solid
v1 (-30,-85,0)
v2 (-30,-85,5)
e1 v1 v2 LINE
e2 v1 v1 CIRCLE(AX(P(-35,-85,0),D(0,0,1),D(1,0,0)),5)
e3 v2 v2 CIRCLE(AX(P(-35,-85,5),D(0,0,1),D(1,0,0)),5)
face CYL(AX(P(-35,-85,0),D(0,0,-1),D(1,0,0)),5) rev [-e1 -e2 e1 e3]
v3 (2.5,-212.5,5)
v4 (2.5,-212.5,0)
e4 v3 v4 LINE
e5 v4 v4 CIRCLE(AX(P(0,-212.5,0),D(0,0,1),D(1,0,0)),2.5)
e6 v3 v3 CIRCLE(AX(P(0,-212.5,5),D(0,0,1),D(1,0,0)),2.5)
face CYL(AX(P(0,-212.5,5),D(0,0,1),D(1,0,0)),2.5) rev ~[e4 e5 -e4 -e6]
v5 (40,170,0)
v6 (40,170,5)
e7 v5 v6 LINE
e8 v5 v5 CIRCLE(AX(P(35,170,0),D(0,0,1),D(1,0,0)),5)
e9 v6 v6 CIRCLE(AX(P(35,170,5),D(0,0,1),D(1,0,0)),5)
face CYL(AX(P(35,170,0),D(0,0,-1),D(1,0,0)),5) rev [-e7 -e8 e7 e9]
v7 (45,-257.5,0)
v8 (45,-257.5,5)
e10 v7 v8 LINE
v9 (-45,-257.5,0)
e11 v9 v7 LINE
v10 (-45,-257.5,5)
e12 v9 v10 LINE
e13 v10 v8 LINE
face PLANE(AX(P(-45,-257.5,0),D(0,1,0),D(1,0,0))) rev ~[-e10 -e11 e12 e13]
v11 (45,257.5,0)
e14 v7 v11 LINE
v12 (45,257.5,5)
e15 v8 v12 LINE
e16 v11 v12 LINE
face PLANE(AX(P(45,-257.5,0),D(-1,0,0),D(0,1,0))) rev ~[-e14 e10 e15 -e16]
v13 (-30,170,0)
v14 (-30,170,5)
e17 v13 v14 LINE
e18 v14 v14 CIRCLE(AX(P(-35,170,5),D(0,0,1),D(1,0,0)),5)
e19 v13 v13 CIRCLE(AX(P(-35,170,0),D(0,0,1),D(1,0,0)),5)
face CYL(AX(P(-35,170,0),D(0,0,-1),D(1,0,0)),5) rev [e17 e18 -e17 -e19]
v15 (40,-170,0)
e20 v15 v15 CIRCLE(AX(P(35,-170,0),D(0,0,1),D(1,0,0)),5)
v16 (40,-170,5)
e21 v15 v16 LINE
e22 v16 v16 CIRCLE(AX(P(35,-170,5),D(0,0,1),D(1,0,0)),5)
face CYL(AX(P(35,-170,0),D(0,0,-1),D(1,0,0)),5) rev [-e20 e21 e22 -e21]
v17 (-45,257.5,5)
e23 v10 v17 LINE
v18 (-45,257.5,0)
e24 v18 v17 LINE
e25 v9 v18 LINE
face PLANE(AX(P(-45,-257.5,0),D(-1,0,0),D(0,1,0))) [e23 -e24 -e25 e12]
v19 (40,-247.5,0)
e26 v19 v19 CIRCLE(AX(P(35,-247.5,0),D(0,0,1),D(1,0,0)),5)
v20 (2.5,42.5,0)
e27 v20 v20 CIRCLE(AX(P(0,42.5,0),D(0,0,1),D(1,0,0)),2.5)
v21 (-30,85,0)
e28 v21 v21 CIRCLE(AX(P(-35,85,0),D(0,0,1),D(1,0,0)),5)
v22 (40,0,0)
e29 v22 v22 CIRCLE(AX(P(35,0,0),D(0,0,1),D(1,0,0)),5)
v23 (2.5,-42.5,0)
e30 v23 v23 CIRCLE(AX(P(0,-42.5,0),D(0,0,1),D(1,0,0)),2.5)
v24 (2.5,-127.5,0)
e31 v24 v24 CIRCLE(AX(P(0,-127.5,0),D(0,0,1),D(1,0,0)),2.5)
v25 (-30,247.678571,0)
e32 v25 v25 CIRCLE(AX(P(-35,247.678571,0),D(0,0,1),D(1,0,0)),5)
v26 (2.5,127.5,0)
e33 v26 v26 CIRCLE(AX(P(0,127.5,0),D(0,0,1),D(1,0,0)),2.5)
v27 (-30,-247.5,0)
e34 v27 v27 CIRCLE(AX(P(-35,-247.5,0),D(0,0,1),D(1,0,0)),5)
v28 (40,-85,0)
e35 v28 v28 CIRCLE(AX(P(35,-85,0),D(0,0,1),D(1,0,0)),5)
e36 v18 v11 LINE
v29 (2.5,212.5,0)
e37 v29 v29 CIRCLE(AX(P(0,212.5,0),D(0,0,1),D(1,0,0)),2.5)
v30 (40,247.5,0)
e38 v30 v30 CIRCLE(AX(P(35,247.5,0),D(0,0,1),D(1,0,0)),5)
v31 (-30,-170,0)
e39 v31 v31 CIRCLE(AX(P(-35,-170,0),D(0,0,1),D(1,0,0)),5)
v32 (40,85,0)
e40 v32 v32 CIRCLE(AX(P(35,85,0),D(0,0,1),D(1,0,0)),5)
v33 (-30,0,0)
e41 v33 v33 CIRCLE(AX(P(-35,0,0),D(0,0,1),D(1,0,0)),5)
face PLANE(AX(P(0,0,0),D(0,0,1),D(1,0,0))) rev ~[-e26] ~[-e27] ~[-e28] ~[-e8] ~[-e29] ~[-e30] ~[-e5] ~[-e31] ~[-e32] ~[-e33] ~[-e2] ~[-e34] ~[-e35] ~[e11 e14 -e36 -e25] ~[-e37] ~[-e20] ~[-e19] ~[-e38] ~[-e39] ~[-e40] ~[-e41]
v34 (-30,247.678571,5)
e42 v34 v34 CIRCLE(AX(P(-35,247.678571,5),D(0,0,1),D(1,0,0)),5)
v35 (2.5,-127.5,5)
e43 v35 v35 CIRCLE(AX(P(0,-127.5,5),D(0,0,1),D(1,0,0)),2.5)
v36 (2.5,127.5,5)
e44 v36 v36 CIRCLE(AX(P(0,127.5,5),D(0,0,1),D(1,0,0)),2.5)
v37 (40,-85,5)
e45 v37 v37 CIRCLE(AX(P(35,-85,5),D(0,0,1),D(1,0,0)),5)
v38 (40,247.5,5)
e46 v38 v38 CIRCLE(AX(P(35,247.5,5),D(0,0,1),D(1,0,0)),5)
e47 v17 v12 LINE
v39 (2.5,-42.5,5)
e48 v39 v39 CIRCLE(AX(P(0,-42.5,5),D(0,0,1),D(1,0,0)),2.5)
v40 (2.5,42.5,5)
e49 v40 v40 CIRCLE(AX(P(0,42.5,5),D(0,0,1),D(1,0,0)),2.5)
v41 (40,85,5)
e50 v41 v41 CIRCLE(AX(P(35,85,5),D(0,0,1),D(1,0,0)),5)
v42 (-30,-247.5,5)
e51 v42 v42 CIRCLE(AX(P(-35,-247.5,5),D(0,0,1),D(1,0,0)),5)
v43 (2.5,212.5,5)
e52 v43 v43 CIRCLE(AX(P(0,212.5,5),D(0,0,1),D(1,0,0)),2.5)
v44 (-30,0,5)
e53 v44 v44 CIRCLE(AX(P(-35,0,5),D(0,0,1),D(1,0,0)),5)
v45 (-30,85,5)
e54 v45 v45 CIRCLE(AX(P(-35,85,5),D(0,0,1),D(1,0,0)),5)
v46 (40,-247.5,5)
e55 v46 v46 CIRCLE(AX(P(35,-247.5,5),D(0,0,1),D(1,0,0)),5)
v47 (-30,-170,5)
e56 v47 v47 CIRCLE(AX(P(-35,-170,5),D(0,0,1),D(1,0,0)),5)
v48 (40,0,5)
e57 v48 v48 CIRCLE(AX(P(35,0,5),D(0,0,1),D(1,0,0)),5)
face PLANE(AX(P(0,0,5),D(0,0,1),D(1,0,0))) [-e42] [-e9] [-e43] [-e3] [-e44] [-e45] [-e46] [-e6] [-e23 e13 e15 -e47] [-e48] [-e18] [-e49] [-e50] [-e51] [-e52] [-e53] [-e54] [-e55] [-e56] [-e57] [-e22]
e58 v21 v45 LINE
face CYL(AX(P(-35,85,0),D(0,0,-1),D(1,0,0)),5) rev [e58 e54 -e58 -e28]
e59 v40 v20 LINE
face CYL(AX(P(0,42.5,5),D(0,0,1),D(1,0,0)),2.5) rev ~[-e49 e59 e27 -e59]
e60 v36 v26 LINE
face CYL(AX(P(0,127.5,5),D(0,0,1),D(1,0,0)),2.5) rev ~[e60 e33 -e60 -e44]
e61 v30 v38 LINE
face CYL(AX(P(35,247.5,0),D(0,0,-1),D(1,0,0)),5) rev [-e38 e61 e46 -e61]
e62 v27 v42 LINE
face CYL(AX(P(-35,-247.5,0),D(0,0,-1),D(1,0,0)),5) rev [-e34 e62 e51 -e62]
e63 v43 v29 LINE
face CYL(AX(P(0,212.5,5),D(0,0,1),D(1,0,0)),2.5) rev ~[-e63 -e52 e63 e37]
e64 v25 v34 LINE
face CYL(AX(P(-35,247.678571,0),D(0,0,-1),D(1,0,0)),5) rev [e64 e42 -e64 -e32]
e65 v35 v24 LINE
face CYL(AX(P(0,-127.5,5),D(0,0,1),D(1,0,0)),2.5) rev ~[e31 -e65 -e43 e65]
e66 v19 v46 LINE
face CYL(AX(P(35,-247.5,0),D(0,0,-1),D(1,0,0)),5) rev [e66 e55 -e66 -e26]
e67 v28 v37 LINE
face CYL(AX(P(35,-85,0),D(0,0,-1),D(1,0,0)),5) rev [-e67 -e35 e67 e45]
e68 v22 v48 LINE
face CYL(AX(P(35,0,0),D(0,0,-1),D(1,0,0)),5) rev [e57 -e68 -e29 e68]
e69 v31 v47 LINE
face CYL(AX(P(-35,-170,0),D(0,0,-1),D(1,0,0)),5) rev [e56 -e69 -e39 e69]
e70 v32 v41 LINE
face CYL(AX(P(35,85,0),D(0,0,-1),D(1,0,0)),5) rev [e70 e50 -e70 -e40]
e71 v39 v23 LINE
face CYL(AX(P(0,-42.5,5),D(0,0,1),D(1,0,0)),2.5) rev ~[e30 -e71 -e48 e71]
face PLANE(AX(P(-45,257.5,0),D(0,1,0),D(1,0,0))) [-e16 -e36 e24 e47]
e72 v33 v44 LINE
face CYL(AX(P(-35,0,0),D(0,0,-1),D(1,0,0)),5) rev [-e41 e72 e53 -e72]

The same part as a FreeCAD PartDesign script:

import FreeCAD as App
import Part
import Sketcher
from FreeCAD import Vector

doc = App.newDocument("Part")
body = doc.addObject("PartDesign::Body", "Body")

sketch1 = body.newObject("Sketcher::SketchObject", "Sketch")
sketch1.AttachmentSupport = (doc.getObject("XY_Plane"), [""])
sketch1.MapMode = "FlatFace"
sketch1.addGeometry(Part.LineSegment(Vector(-45, 258, 0), Vector(-45, -258, 0)), False)
sketch1.addGeometry(Part.LineSegment(Vector(-45, -258, 0), Vector(45, -258, 0)), False)
sketch1.addGeometry(Part.LineSegment(Vector(45, -258, 0), Vector(45, 258, 0)), False)
sketch1.addGeometry(Part.LineSegment(Vector(45, 258, 0), Vector(-45, 258, 0)), False)
sketch1.addGeometry(Part.Circle(Vector(-35, -248, 0), Vector(0, 0, 1), 5), False)
sketch1.addGeometry(Part.Circle(Vector(-35, -170, 0), Vector(0, 0, 1), 5), False)
sketch1.addGeometry(Part.Circle(Vector(-35, -85, 0), Vector(0, 0, 1), 5), False)
sketch1.addGeometry(Part.Circle(Vector(-35, 0, 0), Vector(0, 0, 1), 5), False)
sketch1.addGeometry(Part.Circle(Vector(35, -248, 0), Vector(0, 0, 1), 5), False)
sketch1.addGeometry(Part.Circle(Vector(35, -170, 0), Vector(0, 0, 1), 5), False)
sketch1.addGeometry(Part.Circle(Vector(35, -85, 0), Vector(0, 0, 1), 5), False)
sketch1.addGeometry(Part.Circle(Vector(35, 0, 0), Vector(0, 0, 1), 5), False)
sketch1.addGeometry(Part.Circle(Vector(-35, 85, 0), Vector(0, 0, 1), 5), False)
sketch1.addGeometry(Part.Circle(Vector(-35, 170, 0), Vector(0, 0, 1), 5), False)
sketch1.addGeometry(Part.Circle(Vector(-35, 248, 0), Vector(0, 0, 1), 5), False)
sketch1.addGeometry(Part.Circle(Vector(35, 85, 0), Vector(0, 0, 1), 5), False)
sketch1.addGeometry(Part.Circle(Vector(35, 170, 0), Vector(0, 0, 1), 5), False)
sketch1.addGeometry(Part.Circle(Vector(35, 248, 0), Vector(0, 0, 1), 5), False)
sketch1.addConstraint(Sketcher.Constraint("Coincident", 0, 2, 1, 1))
sketch1.addConstraint(Sketcher.Constraint("Coincident", 1, 2, 2, 1))
sketch1.addConstraint(Sketcher.Constraint("Coincident", 2, 2, 3, 1))
sketch1.addConstraint(Sketcher.Constraint("Coincident", 3, 2, 0, 1))
sketch1.addConstraint(Sketcher.Constraint("Vertical", 0))
sketch1.addConstraint(Sketcher.Constraint("Horizontal", 1))
sketch1.addConstraint(Sketcher.Constraint("Vertical", 2))
sketch1.addConstraint(Sketcher.Constraint("Horizontal", 3))
sketch1.addConstraint(Sketcher.Constraint("Equal", 4, 5))
sketch1.addConstraint(Sketcher.Constraint("Equal", 5, 6))
sketch1.addConstraint(Sketcher.Constraint("Equal", 6, 7))
sketch1.addConstraint(Sketcher.Constraint("Equal", 7, 8))
sketch1.addConstraint(Sketcher.Constraint("Equal", 8, 9))
sketch1.addConstraint(Sketcher.Constraint("Equal", 9, 10))
sketch1.addConstraint(Sketcher.Constraint("Equal", 10, 11))
sketch1.addConstraint(Sketcher.Constraint("Equal", 11, 12))
sketch1.addConstraint(Sketcher.Constraint("Equal", 12, 13))
sketch1.addConstraint(Sketcher.Constraint("Equal", 13, 14))
sketch1.addConstraint(Sketcher.Constraint("Equal", 14, 15))
sketch1.addConstraint(Sketcher.Constraint("Equal", 15, 16))
sketch1.addConstraint(Sketcher.Constraint("Equal", 16, 17))
sketch1.addConstraint(Sketcher.Constraint("Symmetric", 7, 3, 11, 3, -1, 1))
sketch1.addConstraint(Sketcher.Constraint("Symmetric", 10, 3, 12, 3, -1, 1))
sketch1.addConstraint(Sketcher.Constraint("Symmetric", 9, 3, 13, 3, -1, 1))
sketch1.addConstraint(Sketcher.Constraint("Symmetric", 6, 3, 15, 3, -1, 1))
sketch1.addConstraint(Sketcher.Constraint("Symmetric", 5, 3, 16, 3, -1, 1))
sketch1.addConstraint(Sketcher.Constraint("Symmetric", 4, 3, 17, 3, -1, 1))
sketch1.addConstraint(Sketcher.Constraint("Symmetric", 0, 2, 2, 2, -1, 1))
sketch1.addConstraint(Sketcher.Constraint("Symmetric", 4, 3, 8, 3, -2))
sketch1.addConstraint(Sketcher.Constraint("Symmetric", 5, 3, 9, 3, -2))
sketch1.addConstraint(Sketcher.Constraint("Symmetric", 6, 3, 10, 3, -2))
sketch1.addConstraint(Sketcher.Constraint("PointOnObject", 7, 3, -1))
sketch1.addConstraint(Sketcher.Constraint("Vertical", 4, 3, 5, 3))
sketch1.addConstraint(Sketcher.Constraint("Vertical", 5, 3, 6, 3))
sketch1.addConstraint(Sketcher.Constraint("Vertical", 6, 3, 7, 3))
sketch1.addConstraint(Sketcher.Constraint("Vertical", 13, 3, 14, 3))
sketch1.addConstraint(Sketcher.Constraint("Diameter", 4, 10.0))
sketch1.addConstraint(Sketcher.Constraint("DistanceX", 1, 1, 1, 2, 90.0))
sketch1.addConstraint(Sketcher.Constraint("DistanceY", 0, 2, 0, 1, 515.0))
sketch1.addConstraint(Sketcher.Constraint("DistanceX", 4, 3, -1, 1, 35.0))
sketch1.addConstraint(Sketcher.Constraint("DistanceY", 5, 3, -1, 1, 170.0))
sketch1.addConstraint(Sketcher.Constraint("DistanceY", 6, 3, -1, 1, 85.0))
sketch1.addConstraint(Sketcher.Constraint("DistanceY", 0, 2, 4, 3, 10.0))
sketch1.addConstraint(Sketcher.Constraint("DistanceY", -1, 1, 14, 3, 247.678571))
pad1 = body.newObject("PartDesign::Pad", "Pad")
pad1.Profile = sketch1
pad1.Length = 5

sketch2 = body.newObject("Sketcher::SketchObject", "Sketch001")
sketch2.AttachmentSupport = (doc.getObject("XY_Plane"), [""])
sketch2.MapMode = "FlatFace"
sketch2.AttachmentOffset = App.Placement(Vector(0, 0, 5), App.Rotation())
sketch2.addGeometry(Part.Circle(Vector(0, 212.5, 0), Vector(0, 0, 1), 2.5), False)
sketch2.addGeometry(Part.Circle(Vector(0, 127.5, 0), Vector(0, 0, 1), 2.5), False)
sketch2.addGeometry(Part.Circle(Vector(0, 42.5, 0), Vector(0, 0, 1), 2.5), False)
sketch2.addGeometry(Part.Circle(Vector(0, -42.5, 0), Vector(0, 0, 1), 2.5), False)
sketch2.addGeometry(Part.Circle(Vector(0, -127.5, 0), Vector(0, 0, 1), 2.5), False)
sketch2.addGeometry(Part.Circle(Vector(0, -212.5, 0), Vector(0, 0, 1), 2.5), False)
sketch2.addConstraint(Sketcher.Constraint("Equal", 0, 1))
sketch2.addConstraint(Sketcher.Constraint("Equal", 1, 2))
sketch2.addConstraint(Sketcher.Constraint("Equal", 2, 3))
sketch2.addConstraint(Sketcher.Constraint("Equal", 3, 4))
sketch2.addConstraint(Sketcher.Constraint("Equal", 4, 5))
sketch2.addConstraint(Sketcher.Constraint("Symmetric", 2, 3, 3, 3, -1, 1))
sketch2.addConstraint(Sketcher.Constraint("Symmetric", 1, 3, 4, 3, -1, 1))
sketch2.addConstraint(Sketcher.Constraint("Symmetric", 0, 3, 5, 3, -1, 1))
sketch2.addConstraint(Sketcher.Constraint("PointOnObject", 0, 3, -2))
sketch2.addConstraint(Sketcher.Constraint("PointOnObject", 1, 3, -2))
sketch2.addConstraint(Sketcher.Constraint("PointOnObject", 2, 3, -2))
sketch2.addConstraint(Sketcher.Constraint("Diameter", 0, 5.0))
sketch2.addConstraint(Sketcher.Constraint("DistanceY", 1, 3, 0, 3, 85.0))
sketch2.addConstraint(Sketcher.Constraint("DistanceY", 2, 3, 1, 3, 85.0))
sketch2.addConstraint(Sketcher.Constraint("DistanceY", 3, 3, 2, 3, 85.0))
pocket1 = body.newObject("PartDesign::Pocket", "Pocket")
pocket1.Profile = sketch2
pocket1.Length = 25

doc.recompute()
